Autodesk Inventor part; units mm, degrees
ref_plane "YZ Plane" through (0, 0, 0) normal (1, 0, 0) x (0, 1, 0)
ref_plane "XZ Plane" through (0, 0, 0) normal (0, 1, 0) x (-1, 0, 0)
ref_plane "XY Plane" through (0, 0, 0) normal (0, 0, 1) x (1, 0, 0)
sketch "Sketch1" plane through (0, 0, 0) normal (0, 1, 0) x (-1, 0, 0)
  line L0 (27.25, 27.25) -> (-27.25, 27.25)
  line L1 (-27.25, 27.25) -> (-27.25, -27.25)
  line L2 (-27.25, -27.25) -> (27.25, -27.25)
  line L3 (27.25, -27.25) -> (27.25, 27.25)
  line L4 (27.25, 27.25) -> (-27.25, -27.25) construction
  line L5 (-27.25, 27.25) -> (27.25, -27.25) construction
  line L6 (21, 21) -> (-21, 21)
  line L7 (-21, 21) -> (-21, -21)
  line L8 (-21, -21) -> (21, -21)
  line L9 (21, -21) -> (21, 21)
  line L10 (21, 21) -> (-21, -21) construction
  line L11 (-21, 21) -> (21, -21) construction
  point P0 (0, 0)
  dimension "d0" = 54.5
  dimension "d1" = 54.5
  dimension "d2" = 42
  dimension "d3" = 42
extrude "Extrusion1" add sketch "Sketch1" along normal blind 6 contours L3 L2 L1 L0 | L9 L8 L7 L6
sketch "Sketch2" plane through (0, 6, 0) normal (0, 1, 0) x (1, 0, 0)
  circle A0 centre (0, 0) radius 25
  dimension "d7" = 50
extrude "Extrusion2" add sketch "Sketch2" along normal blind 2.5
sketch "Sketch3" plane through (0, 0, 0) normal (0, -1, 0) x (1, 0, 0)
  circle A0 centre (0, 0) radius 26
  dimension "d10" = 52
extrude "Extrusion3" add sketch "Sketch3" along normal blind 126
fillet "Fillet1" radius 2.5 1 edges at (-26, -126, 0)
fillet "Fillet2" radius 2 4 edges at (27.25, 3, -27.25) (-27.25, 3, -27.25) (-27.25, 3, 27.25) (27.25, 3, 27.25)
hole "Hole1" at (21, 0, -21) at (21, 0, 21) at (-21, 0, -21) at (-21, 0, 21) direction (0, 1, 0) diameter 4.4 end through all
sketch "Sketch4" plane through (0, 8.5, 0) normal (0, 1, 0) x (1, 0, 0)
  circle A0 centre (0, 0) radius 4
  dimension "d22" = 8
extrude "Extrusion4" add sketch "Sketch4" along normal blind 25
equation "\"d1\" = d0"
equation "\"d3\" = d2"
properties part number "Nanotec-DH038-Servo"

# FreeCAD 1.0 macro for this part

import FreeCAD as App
import Part
import Sketcher
Q = App.Units.Quantity


def edges_at(feature, points):
    """Names of the edges that pass closest to the given points."""
    edges = feature.Shape.Edges
    near = lambda p: min(range(len(edges)), key=lambda i: edges[i].distToShape(Part.Vertex(*p))[0])
    return sorted({f"Edge{near(p) + 1}" for p in points})

doc = App.newDocument("Part")
body = doc.addObject("PartDesign::Body", "Body")

sketch1 = doc.addObject("Sketcher::SketchObject", "Sketch")
body.addObject(sketch1)
sketch1.AttachmentSupport = (doc.XZ_Plane, [""])
sketch1.MapMode = "FlatFace"
sketch1.addGeometry([
    Part.LineSegment(App.Vector(-27.25, -27.25, 0), App.Vector(-27.25, 27.25, 0)),
    Part.LineSegment(App.Vector(-27.25, 27.25, 0), App.Vector(27.25, 27.25, 0)),
    Part.LineSegment(App.Vector(27.25, 27.25, 0), App.Vector(27.25, -27.25, 0)),
    Part.LineSegment(App.Vector(27.25, -27.25, 0), App.Vector(-27.25, -27.25, 0)),
], False)
sketch1.addConstraint([
    Sketcher.Constraint("Coincident", 0, 2, 1, 1),
    Sketcher.Constraint("Coincident", 1, 2, 2, 1),
    Sketcher.Constraint("Coincident", 2, 2, 3, 1),
    Sketcher.Constraint("Coincident", 3, 2, 0, 1),
    Sketcher.Constraint("Vertical", 0),
    Sketcher.Constraint("Horizontal", 1),
    Sketcher.Constraint("Vertical", 2),
    Sketcher.Constraint("Horizontal", 3),
    Sketcher.Constraint("Symmetric", 0, 2, 2, 2, -1, 1),
    Sketcher.Constraint("Equal", 3, 0),
    Sketcher.Constraint("DistanceX", 1, 1, 1, 2, Q("54.5 mm")),
])
pad1 = doc.addObject("PartDesign::Pad", "Pad")
body.addObject(pad1)
pad1.Profile = sketch1
pad1.Length = 6
pad1.Reversed = True

sketch2 = doc.addObject("Sketcher::SketchObject", "Sketch001")
body.addObject(sketch2)
sketch2.AttachmentSupport = (doc.XZ_Plane, [""])
sketch2.MapMode = "FlatFace"
sketch2.AttachmentOffset = App.Placement(App.Vector(0, 0, -6), App.Rotation())
sketch2.addGeometry(Part.Circle(App.Vector(0, 0, 0), App.Vector(0, 0, 1), 25), False)
sketch2.addConstraint([
    Sketcher.Constraint("Coincident", 0, 3, -1, 1),
    Sketcher.Constraint("Diameter", 0, Q("50 mm")),
])
pad2 = doc.addObject("PartDesign::Pad", "Pad001")
body.addObject(pad2)
pad2.Profile = sketch2
pad2.Length = 2.5
pad2.Reversed = True

sketch3 = doc.addObject("Sketcher::SketchObject", "Sketch002")
body.addObject(sketch3)
sketch3.AttachmentSupport = (doc.XZ_Plane, [""])
sketch3.MapMode = "FlatFace"
sketch3.addGeometry(Part.Circle(App.Vector(0, 0, 0), App.Vector(0, 0, 1), 26), False)
sketch3.addConstraint([
    Sketcher.Constraint("Coincident", 0, 3, -1, 1),
    Sketcher.Constraint("Diameter", 0, Q("52 mm")),
])
pad3 = doc.addObject("PartDesign::Pad", "Pad002")
body.addObject(pad3)
pad3.Profile = sketch3
pad3.Length = 126
doc.recompute()

fillet = doc.addObject("PartDesign::Fillet", "Fillet")
body.addObject(fillet)
fillet.Base = (pad3, edges_at(pad3, [(-26, -126, 0)]))
fillet.Radius = 2.5
doc.recompute()

fillet2 = doc.addObject("PartDesign::Fillet", "Fillet001")
body.addObject(fillet2)
fillet2.Base = (fillet, edges_at(fillet, [
    (27.25, 3, -27.25),
    (-27.25, 3, -27.25),
    (-27.25, 3, 27.25),
    (27.25, 3, 27.25),
]))
fillet2.Radius = 2

sketch4 = doc.addObject("Sketcher::SketchObject", "Sketch003")
body.addObject(sketch4)
sketch4.AttachmentSupport = (doc.XZ_Plane, [""])
sketch4.MapMode = "FlatFace"
sketch4.addGeometry([
    Part.Circle(App.Vector(21, -21, 0), App.Vector(0, 0, 1), 2.2),
    Part.Circle(App.Vector(21, 21, 0), App.Vector(0, 0, 1), 2.2),
    Part.Circle(App.Vector(-21, -21, 0), App.Vector(0, 0, 1), 2.2),
    Part.Circle(App.Vector(-21, 21, 0), App.Vector(0, 0, 1), 2.2),
], False)
sketch4.addConstraint([
    Sketcher.Constraint("Equal", 0, 1),
    Sketcher.Constraint("Equal", 1, 2),
    Sketcher.Constraint("Equal", 2, 3),
    Sketcher.Constraint("Symmetric", 1, 3, 2, 3, -1, 1),
    Sketcher.Constraint("Symmetric", 0, 3, 3, 3, -1, 1),
    Sketcher.Constraint("Symmetric", 0, 3, 2, 3, -2),
    Sketcher.Constraint("Diameter", 0, Q("4.4 mm")),
    Sketcher.Constraint("DistanceX", -1, 1, 0, 3, Q("21 mm")),
    Sketcher.Constraint("DistanceY", 0, 3, -1, 1, Q("21 mm")),
])
doc.recompute()
hole = doc.addObject("PartDesign::Hole", "Hole")
body.addObject(hole)
hole.Profile = sketch4
hole.ThreadType = "None"
hole.Diameter = 4.4
hole.DepthType = "ThroughAll"

sketch5 = doc.addObject("Sketcher::SketchObject", "Sketch004")
body.addObject(sketch5)
sketch5.AttachmentSupport = (doc.XZ_Plane, [""])
sketch5.MapMode = "FlatFace"
sketch5.AttachmentOffset = App.Placement(App.Vector(0, 0, -8.5), App.Rotation())
sketch5.addGeometry(Part.Circle(App.Vector(0, 0, 0), App.Vector(0, 0, 1), 4), False)
sketch5.addConstraint([
    Sketcher.Constraint("Coincident", 0, 3, -1, 1),
    Sketcher.Constraint("Diameter", 0, Q("8 mm")),
])
pad4 = doc.addObject("PartDesign::Pad", "Pad003")
body.addObject(pad4)
pad4.Profile = sketch5
pad4.Length = 25
pad4.Reversed = True

doc.recompute()
